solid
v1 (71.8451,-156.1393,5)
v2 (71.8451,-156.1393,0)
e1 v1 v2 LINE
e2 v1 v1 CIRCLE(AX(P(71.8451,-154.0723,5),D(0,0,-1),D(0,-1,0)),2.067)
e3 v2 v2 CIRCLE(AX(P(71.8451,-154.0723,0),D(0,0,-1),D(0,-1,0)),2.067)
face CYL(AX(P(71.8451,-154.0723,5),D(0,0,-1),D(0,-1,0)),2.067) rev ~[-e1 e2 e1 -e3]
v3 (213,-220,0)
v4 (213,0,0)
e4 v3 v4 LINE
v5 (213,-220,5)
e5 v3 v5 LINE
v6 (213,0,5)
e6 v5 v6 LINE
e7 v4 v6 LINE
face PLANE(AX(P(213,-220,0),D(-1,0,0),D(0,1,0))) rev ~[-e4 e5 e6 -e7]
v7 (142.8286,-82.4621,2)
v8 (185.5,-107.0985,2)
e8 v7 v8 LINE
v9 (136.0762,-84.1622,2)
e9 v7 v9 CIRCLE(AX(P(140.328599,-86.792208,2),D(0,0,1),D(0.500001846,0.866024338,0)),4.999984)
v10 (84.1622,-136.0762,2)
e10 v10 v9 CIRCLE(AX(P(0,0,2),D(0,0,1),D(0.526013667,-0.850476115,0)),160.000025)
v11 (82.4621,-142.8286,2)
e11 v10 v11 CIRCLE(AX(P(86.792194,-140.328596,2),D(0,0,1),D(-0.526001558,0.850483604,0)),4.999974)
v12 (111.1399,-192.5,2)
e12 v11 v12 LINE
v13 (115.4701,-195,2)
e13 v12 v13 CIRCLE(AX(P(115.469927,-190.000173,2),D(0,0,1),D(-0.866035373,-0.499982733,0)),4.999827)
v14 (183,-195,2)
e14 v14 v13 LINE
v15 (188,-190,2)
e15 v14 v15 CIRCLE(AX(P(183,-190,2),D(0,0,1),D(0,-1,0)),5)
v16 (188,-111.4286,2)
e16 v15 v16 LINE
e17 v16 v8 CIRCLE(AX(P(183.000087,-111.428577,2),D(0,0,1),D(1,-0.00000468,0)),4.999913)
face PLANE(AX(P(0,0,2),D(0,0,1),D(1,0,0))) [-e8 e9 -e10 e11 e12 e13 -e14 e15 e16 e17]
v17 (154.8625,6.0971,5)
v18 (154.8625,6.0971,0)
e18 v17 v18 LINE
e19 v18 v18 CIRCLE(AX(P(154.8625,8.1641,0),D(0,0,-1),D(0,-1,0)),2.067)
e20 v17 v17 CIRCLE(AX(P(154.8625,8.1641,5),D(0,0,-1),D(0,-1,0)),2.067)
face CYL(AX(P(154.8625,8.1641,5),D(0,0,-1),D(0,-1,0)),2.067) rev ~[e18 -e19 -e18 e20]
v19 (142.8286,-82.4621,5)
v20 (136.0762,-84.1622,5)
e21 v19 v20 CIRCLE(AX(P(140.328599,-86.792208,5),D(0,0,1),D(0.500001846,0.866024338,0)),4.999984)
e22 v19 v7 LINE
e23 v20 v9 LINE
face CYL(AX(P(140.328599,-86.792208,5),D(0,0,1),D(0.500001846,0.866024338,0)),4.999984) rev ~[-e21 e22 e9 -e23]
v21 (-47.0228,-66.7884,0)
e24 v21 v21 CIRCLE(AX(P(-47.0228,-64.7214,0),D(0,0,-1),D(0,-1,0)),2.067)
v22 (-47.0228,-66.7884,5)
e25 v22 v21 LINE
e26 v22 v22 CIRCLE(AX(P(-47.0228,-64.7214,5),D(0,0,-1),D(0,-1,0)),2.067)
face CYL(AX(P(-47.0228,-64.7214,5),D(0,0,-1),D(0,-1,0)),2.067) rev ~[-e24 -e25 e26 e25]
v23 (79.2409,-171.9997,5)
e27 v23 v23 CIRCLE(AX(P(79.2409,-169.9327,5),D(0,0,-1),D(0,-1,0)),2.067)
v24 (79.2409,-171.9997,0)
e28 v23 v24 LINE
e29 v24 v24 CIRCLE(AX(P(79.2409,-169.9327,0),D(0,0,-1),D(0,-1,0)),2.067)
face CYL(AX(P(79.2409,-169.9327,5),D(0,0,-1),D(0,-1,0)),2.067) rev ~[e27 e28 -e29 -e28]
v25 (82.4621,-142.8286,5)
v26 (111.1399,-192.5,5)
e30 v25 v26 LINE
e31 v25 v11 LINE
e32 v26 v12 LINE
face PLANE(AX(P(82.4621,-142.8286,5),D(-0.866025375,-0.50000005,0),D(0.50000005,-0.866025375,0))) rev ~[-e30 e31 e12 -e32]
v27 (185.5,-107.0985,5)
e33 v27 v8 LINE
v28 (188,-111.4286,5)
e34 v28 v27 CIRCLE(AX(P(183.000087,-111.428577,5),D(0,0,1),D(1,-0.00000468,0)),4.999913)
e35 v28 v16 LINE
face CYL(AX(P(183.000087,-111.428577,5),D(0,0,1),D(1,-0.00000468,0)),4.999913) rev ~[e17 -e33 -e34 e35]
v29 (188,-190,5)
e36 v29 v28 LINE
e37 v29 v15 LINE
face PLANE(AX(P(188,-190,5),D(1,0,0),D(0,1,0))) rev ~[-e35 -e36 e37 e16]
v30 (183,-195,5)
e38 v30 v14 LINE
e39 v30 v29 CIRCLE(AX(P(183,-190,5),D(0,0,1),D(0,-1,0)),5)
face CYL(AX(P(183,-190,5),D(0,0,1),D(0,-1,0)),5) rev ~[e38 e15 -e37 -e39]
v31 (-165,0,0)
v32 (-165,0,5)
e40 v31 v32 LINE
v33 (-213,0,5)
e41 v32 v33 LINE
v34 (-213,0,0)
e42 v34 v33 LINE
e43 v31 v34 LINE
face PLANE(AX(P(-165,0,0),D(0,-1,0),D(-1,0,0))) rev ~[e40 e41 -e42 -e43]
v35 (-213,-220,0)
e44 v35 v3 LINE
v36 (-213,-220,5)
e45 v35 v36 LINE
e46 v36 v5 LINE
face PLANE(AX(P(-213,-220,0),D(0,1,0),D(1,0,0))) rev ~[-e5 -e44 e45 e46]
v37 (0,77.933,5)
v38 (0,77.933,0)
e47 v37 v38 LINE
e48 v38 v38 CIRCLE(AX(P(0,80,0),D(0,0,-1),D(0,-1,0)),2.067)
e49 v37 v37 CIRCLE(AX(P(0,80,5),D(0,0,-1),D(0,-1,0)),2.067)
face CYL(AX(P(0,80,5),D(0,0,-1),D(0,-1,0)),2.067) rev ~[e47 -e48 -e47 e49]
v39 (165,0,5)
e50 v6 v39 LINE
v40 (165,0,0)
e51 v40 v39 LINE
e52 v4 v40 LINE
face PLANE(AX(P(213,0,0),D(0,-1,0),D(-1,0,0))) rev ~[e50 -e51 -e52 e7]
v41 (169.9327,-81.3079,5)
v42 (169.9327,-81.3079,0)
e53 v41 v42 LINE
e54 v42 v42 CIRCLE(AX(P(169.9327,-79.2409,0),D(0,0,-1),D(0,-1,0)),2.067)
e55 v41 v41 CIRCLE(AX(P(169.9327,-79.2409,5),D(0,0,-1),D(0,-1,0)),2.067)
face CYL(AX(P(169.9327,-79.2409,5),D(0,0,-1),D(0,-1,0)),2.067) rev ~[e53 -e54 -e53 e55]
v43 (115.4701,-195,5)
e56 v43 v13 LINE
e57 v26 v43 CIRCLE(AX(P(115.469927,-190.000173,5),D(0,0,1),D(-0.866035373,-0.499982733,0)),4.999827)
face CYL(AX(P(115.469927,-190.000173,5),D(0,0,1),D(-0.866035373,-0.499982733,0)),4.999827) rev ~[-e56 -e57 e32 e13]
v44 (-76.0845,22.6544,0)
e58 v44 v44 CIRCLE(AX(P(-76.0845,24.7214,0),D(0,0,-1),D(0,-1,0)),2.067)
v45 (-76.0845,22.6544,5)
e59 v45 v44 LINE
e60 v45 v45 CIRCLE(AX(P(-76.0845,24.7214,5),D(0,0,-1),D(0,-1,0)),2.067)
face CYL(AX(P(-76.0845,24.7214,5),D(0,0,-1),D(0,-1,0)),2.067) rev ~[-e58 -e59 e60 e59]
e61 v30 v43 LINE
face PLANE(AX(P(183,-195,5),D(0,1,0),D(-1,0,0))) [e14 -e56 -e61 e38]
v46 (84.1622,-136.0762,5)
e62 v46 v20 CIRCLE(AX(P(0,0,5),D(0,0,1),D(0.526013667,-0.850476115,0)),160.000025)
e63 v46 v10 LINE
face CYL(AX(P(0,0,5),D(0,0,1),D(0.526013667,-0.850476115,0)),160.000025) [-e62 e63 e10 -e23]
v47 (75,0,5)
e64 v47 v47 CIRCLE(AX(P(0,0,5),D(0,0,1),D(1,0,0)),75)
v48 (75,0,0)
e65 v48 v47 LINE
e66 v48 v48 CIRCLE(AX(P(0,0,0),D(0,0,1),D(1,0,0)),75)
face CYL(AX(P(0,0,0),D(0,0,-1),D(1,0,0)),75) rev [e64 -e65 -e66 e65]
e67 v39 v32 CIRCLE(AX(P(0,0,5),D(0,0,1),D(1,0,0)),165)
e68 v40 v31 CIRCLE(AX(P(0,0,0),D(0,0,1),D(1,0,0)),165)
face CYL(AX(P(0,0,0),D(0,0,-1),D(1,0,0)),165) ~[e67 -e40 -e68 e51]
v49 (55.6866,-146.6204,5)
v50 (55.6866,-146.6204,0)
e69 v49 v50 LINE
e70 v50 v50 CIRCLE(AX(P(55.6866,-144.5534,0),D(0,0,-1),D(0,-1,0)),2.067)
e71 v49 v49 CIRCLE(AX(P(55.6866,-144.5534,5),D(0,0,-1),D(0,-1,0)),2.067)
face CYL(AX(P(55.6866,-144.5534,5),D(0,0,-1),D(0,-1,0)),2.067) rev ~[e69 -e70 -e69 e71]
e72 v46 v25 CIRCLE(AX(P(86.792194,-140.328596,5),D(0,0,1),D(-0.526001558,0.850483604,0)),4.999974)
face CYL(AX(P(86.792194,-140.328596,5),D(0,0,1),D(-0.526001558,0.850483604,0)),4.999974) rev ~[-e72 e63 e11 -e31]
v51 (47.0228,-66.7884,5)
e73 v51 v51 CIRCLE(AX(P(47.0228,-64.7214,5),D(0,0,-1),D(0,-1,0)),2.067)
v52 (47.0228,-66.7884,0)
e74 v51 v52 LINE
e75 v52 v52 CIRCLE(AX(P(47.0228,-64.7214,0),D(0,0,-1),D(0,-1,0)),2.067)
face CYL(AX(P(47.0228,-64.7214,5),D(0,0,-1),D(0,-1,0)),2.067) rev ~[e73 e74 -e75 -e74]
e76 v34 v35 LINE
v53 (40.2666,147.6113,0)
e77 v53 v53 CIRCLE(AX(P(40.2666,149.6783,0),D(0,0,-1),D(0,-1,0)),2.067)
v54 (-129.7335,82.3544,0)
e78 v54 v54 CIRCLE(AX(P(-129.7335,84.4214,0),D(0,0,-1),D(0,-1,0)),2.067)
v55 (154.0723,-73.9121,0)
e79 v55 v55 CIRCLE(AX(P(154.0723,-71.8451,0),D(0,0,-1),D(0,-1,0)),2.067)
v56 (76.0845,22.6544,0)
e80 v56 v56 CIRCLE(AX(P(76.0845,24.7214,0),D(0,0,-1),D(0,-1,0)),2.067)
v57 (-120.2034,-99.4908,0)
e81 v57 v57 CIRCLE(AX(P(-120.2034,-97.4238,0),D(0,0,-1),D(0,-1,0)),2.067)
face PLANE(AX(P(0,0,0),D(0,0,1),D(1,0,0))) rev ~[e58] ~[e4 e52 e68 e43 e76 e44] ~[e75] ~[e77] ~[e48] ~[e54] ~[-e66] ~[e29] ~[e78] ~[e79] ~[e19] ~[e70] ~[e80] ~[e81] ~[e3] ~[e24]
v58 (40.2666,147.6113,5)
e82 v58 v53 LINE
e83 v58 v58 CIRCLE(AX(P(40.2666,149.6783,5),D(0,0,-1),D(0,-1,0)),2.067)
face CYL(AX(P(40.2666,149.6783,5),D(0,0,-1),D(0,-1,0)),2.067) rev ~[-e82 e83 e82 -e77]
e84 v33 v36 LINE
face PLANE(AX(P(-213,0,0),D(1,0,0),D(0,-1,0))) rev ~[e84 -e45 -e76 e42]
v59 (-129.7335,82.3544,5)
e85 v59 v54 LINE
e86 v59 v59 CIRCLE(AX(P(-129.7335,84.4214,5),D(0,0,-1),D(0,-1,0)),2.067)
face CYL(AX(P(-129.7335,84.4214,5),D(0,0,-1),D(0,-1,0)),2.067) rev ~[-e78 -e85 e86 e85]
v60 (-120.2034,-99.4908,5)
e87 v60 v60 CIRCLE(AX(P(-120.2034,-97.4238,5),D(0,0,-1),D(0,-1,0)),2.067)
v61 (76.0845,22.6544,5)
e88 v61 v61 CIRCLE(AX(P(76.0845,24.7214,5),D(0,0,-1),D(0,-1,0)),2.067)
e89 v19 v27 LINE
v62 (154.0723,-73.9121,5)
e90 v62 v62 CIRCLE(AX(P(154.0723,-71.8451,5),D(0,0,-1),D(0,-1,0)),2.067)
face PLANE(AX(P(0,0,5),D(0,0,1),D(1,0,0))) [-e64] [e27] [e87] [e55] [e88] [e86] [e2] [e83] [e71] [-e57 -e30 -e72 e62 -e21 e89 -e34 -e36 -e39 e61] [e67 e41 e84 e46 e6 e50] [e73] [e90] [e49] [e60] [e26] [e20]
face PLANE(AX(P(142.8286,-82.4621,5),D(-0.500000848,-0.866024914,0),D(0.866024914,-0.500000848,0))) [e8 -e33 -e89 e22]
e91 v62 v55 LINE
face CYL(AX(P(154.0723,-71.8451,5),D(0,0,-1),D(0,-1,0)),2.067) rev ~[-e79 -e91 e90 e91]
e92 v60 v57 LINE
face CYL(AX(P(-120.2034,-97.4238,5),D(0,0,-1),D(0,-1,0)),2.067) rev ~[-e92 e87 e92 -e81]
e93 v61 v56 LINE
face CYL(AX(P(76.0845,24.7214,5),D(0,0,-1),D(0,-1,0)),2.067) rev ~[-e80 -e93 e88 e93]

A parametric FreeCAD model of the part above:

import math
import FreeCAD as App
import Part
import Sketcher

V = App.Vector
Q = App.Units.Quantity

doc = App.newDocument("Part")
body = doc.addObject("PartDesign::Body", "Body")

sketch1 = doc.addObject("Sketcher::SketchObject", "Sketch")
body.addObject(sketch1)
sketch1.AttachmentSupport = (doc.XY_Plane, [""])
sketch1.MapMode = "FlatFace"
sketch1.addGeometry([
    Part.LineSegment(V(213, 0, 0), V(165, 0, 0)),
    Part.ArcOfCircle(Part.Circle(V(0, 0, 0), V(0, 0, 1), 165), math.radians(0), math.radians(180)),
    Part.LineSegment(V(-165, 0, 0), V(-213, 0, 0)),
    Part.LineSegment(V(-213, 0, 0), V(-213, -220, 0)),
    Part.LineSegment(V(-213, -220, 0), V(213, -220, 0)),
    Part.LineSegment(V(213, -220, 0), V(213, 0, 0)),
    Part.Circle(V(0, 0, 0), V(0, 0, 1), 75),
], False)
sketch1.addConstraint([
    Sketcher.Constraint("Coincident", 0, 2, 1, 1),
    Sketcher.Constraint("Coincident", 1, 2, 2, 1),
    Sketcher.Constraint("Coincident", 2, 2, 3, 1),
    Sketcher.Constraint("Coincident", 3, 2, 4, 1),
    Sketcher.Constraint("Coincident", 4, 2, 5, 1),
    Sketcher.Constraint("Coincident", 5, 2, 0, 1),
    Sketcher.Constraint("Horizontal", 0),
    Sketcher.Constraint("Horizontal", 2),
    Sketcher.Constraint("Vertical", 3),
    Sketcher.Constraint("Horizontal", 4),
    Sketcher.Constraint("Vertical", 5),
    Sketcher.Constraint("Coincident", 1, 3, -1, 1),
    Sketcher.Constraint("Coincident", 6, 3, -1, 1),
    Sketcher.Constraint("Symmetric", 2, 2, 5, 2, -1, 1),
    Sketcher.Constraint("PointOnObject", 0, 2, -1),
    Sketcher.Constraint("Diameter", 6, 150.0),
    Sketcher.Constraint("Radius", 1, 165.0),
    Sketcher.Constraint("DistanceX", 4, 1, 4, 2, 426.0),
    Sketcher.Constraint("DistanceY", 3, 2, 3, 1, 220.0),
])
pad1 = doc.addObject("PartDesign::Pad", "Pad")
body.addObject(pad1)
pad1.Profile = sketch1
pad1.Length = 5

sketch2 = doc.addObject("Sketcher::SketchObject", "Sketch001")
body.addObject(sketch2)
sketch2.AttachmentSupport = (doc.XY_Plane, [""])
sketch2.MapMode = "FlatFace"
sketch2.AttachmentOffset = App.Placement(V(0, 0, 5), App.Rotation())
sketch2.addGeometry([
    Part.Circle(V(40.3, 149.7, 0), V(0, 0, 1), 2.1),
    Part.Circle(V(-129.7, 84.4, 0), V(0, 0, 1), 2.1),
    Part.Circle(V(-120.2, -97.4, 0), V(0, 0, 1), 2.1),
    Part.Circle(V(55.7, -144.6, 0), V(0, 0, 1), 2.1),
    Part.Circle(V(154.9, 8.2, 0), V(0, 0, 1), 2.1),
], False)
sketch2.addConstraint([
    Sketcher.Constraint("Equal", 0, 1),
    Sketcher.Constraint("Equal", 1, 2),
    Sketcher.Constraint("Equal", 2, 3),
    Sketcher.Constraint("Equal", 3, 4),
    Sketcher.Constraint("Diameter", 0, 4.134),
    Sketcher.Constraint("DistanceX", 1, 3, 0, 3, 170.0),
    Sketcher.Constraint("DistanceX", 1, 3, 2, 3, 9.53),
    Sketcher.Constraint("DistanceX", 2, 3, 3, 3, 175.89),
    Sketcher.Constraint("DistanceY", -1, 1, 4, 3, 8.164),
    Sketcher.Constraint("DistanceY", 1, 3, 0, 3, 65.257),
    Sketcher.Constraint("DistanceY", 2, 3, 0, 3, 247.102),
    Sketcher.Constraint("DistanceX", 0, 3, 4, 3, 114.596),
    Sketcher.Constraint("DistanceY", 2, 3, 4, 3, 105.588),
    Sketcher.Constraint("DistanceX", -1, 1, 0, 3, 40.2666),
    Sketcher.Constraint("DistanceY", 3, 3, -1, 1, 144.5534),
])
doc.recompute()
hole = doc.addObject("PartDesign::Hole", "Hole")
body.addObject(hole)
hole.Profile = sketch2
hole.ThreadType = "None"
hole.Diameter = 4.134
hole.DepthType = "Dimension"
hole.Depth = 8
hole.DrillPoint = "Angled"
hole.DrillPointAngle = 118

sketch3 = doc.addObject("Sketcher::SketchObject", "Sketch002")
body.addObject(sketch3)
sketch3.AttachmentSupport = (doc.XY_Plane, [""])
sketch3.MapMode = "FlatFace"
sketch3.AttachmentOffset = App.Placement(V(0, 0, 5), App.Rotation())
sketch3.addGeometry([
    Part.Circle(V(0, 80, 0), V(0, 0, 1), 2.1),
    Part.Circle(V(76.1, 24.7, 0), V(0, 0, 1), 2.1),
    Part.Circle(V(47, -64.7, 0), V(0, 0, 1), 2.1),
    Part.Circle(V(-47, -64.7, 0), V(0, 0, 1), 2.1),
    Part.Circle(V(-76.1, 24.7, 0), V(0, 0, 1), 2.1),
], False)
sketch3.addConstraint([
    Sketcher.Constraint("Equal", 0, 1),
    Sketcher.Constraint("Equal", 1, 2),
    Sketcher.Constraint("Equal", 2, 3),
    Sketcher.Constraint("Equal", 3, 4),
    Sketcher.Constraint("Symmetric", 2, 3, 3, 3, -2),
    Sketcher.Constraint("Symmetric", 1, 3, 4, 3, -2),
    Sketcher.Constraint("PointOnObject", 0, 3, -2),
    Sketcher.Constraint("Diameter", 0, 4.134),
    Sketcher.Constraint("DistanceY", -1, 1, 0, 3, 80.0),
    Sketcher.Constraint("DistanceX", 4, 3, 1, 3, 152.169),
    Sketcher.Constraint("DistanceY", -1, 1, 1, 3, 24.7214),
    Sketcher.Constraint("DistanceX", -1, 1, 2, 3, 47.0228),
    Sketcher.Constraint("DistanceY", 2, 3, -1, 1, 64.7214),
])
doc.recompute()
hole2 = doc.addObject("PartDesign::Hole", "Hole001")
body.addObject(hole2)
hole2.Profile = sketch3
hole2.ThreadType = "None"
hole2.Diameter = 4.134
hole2.DepthType = "Dimension"
hole2.Depth = 8
hole2.DrillPoint = "Angled"
hole2.DrillPointAngle = 118

sketch4 = doc.addObject("Sketcher::SketchObject", "Sketch003")
body.addObject(sketch4)
sketch4.AttachmentSupport = (doc.XY_Plane, [""])
sketch4.MapMode = "FlatFace"
sketch4.AttachmentOffset = App.Placement(V(0, 0, 5), App.Rotation())
sketch4.addGeometry([
    Part.ArcOfCircle(Part.Circle(V(0, 0, 0), V(0, 0, 1), 160), math.radians(-58), math.radians(-32)),
    Part.ArcOfCircle(Part.Circle(V(86.8, -140.3, 0), V(0, 0, 1), 5), math.radians(122), math.radians(210)),
    Part.LineSegment(V(82.5, -142.8, 0), V(111.1, -192.5, 0)),
    Part.ArcOfCircle(Part.Circle(V(115.5, -190, 0), V(0, 0, 1), 5), math.radians(-150), math.radians(-90)),
    Part.LineSegment(V(115.5, -195, 0), V(183, -195, 0)),
    Part.ArcOfCircle(Part.Circle(V(183, -190, 0), V(0, 0, 1), 5), math.radians(-90), math.radians(0)),
    Part.LineSegment(V(188, -190, 0), V(188, -111.4, 0)),
    Part.ArcOfCircle(Part.Circle(V(183, -111.4, 0), V(0, 0, 1), 5), math.radians(0), math.radians(60)),
    Part.LineSegment(V(185.5, -107.1, 0), V(142.8, -82.5, 0)),
    Part.ArcOfCircle(Part.Circle(V(140.3, -86.8, 0), V(0, 0, 1), 5), math.radians(60), math.radians(148)),
], False)
sketch4.addConstraint([
    Sketcher.Constraint("Tangent", 0, 1, 1, 1),
    Sketcher.Constraint("Tangent", 1, 2, 2, 1),
    Sketcher.Constraint("Tangent", 2, 2, 3, 1),
    Sketcher.Constraint("Tangent", 3, 2, 4, 1),
    Sketcher.Constraint("Tangent", 4, 2, 5, 1),
    Sketcher.Constraint("Tangent", 5, 2, 6, 1),
    Sketcher.Constraint("Tangent", 6, 2, 7, 1),
    Sketcher.Constraint("Tangent", 7, 2, 8, 1),
    Sketcher.Constraint("Tangent", 8, 2, 9, 1),
    Sketcher.Constraint("Tangent", 9, 2, 0, 2),
    Sketcher.Constraint("Horizontal", 4),
    Sketcher.Constraint("Vertical", 6),
    Sketcher.Constraint("Coincident", 0, 3, -1, 1),
    Sketcher.Constraint("Equal", 1, 3),
    Sketcher.Constraint("Equal", 3, 5),
    Sketcher.Constraint("Equal", 5, 7),
    Sketcher.Constraint("Equal", 7, 9),
    Sketcher.Constraint("Radius", 0, 160.0),
    Sketcher.Constraint("Radius", 1, 5.0),
    Sketcher.Constraint("Angle", 2, Q("-60 deg")),
    Sketcher.Constraint("Angle", 8, Q("150 deg")),
    Sketcher.Constraint("DistanceY", 3, 3, -1, 1, 190.0),
    Sketcher.Constraint("DistanceX", -1, 1, 5, 3, 183.0),
    Sketcher.Constraint("DistanceX", 4, 1, 4, 2, 67.53),
    Sketcher.Constraint("DistanceY", 1, 3, 7, 3, 28.9),
])
pocket1 = doc.addObject("PartDesign::Pocket", "Pocket")
body.addObject(pocket1)
pocket1.Profile = sketch4
pocket1.Length = 3

sketch5 = doc.addObject("Sketcher::SketchObject", "Sketch004")
body.addObject(sketch5)
sketch5.AttachmentSupport = (doc.XY_Plane, [""])
sketch5.MapMode = "FlatFace"
sketch5.AttachmentOffset = App.Placement(V(0, 0, 5), App.Rotation())
sketch5.addGeometry([
    Part.Circle(V(71.8, -154.1, 0), V(0, 0, 1), 2.1),
    Part.Circle(V(79.2, -169.9, 0), V(0, 0, 1), 2.1),
    Part.Circle(V(169.9, -79.2, 0), V(0, 0, 1), 2.1),
    Part.Circle(V(154.1, -71.8, 0), V(0, 0, 1), 2.1),
], False)
sketch5.addConstraint([
    Sketcher.Constraint("Equal", 0, 1),
    Sketcher.Constraint("Equal", 1, 2),
    Sketcher.Constraint("Equal", 2, 3),
    Sketcher.Constraint("Diameter", 0, 4.134),
    Sketcher.Constraint("DistanceX", -1, 1, 0, 3, 71.845),
    Sketcher.Constraint("DistanceX", -1, 1, 1, 3, 79.241),
    Sketcher.Constraint("DistanceY", 2, 3, -1, 1, 79.241),
    Sketcher.Constraint("DistanceY", 3, 3, -1, 1, 71.845),
    Sketcher.Constraint("DistanceY", 0, 3, -1, 1, 154.0723),
    Sketcher.Constraint("DistanceY", 1, 3, -1, 1, 169.9327),
    Sketcher.Constraint("DistanceX", -1, 1, 2, 3, 169.9327),
    Sketcher.Constraint("DistanceX", -1, 1, 3, 3, 154.0723),
])
doc.recompute()
hole3 = doc.addObject("PartDesign::Hole", "Hole002")
body.addObject(hole3)
hole3.Profile = sketch5
hole3.ThreadType = "None"
hole3.Diameter = 4.134
hole3.DepthType = "ThroughAll"

doc.recompute()
